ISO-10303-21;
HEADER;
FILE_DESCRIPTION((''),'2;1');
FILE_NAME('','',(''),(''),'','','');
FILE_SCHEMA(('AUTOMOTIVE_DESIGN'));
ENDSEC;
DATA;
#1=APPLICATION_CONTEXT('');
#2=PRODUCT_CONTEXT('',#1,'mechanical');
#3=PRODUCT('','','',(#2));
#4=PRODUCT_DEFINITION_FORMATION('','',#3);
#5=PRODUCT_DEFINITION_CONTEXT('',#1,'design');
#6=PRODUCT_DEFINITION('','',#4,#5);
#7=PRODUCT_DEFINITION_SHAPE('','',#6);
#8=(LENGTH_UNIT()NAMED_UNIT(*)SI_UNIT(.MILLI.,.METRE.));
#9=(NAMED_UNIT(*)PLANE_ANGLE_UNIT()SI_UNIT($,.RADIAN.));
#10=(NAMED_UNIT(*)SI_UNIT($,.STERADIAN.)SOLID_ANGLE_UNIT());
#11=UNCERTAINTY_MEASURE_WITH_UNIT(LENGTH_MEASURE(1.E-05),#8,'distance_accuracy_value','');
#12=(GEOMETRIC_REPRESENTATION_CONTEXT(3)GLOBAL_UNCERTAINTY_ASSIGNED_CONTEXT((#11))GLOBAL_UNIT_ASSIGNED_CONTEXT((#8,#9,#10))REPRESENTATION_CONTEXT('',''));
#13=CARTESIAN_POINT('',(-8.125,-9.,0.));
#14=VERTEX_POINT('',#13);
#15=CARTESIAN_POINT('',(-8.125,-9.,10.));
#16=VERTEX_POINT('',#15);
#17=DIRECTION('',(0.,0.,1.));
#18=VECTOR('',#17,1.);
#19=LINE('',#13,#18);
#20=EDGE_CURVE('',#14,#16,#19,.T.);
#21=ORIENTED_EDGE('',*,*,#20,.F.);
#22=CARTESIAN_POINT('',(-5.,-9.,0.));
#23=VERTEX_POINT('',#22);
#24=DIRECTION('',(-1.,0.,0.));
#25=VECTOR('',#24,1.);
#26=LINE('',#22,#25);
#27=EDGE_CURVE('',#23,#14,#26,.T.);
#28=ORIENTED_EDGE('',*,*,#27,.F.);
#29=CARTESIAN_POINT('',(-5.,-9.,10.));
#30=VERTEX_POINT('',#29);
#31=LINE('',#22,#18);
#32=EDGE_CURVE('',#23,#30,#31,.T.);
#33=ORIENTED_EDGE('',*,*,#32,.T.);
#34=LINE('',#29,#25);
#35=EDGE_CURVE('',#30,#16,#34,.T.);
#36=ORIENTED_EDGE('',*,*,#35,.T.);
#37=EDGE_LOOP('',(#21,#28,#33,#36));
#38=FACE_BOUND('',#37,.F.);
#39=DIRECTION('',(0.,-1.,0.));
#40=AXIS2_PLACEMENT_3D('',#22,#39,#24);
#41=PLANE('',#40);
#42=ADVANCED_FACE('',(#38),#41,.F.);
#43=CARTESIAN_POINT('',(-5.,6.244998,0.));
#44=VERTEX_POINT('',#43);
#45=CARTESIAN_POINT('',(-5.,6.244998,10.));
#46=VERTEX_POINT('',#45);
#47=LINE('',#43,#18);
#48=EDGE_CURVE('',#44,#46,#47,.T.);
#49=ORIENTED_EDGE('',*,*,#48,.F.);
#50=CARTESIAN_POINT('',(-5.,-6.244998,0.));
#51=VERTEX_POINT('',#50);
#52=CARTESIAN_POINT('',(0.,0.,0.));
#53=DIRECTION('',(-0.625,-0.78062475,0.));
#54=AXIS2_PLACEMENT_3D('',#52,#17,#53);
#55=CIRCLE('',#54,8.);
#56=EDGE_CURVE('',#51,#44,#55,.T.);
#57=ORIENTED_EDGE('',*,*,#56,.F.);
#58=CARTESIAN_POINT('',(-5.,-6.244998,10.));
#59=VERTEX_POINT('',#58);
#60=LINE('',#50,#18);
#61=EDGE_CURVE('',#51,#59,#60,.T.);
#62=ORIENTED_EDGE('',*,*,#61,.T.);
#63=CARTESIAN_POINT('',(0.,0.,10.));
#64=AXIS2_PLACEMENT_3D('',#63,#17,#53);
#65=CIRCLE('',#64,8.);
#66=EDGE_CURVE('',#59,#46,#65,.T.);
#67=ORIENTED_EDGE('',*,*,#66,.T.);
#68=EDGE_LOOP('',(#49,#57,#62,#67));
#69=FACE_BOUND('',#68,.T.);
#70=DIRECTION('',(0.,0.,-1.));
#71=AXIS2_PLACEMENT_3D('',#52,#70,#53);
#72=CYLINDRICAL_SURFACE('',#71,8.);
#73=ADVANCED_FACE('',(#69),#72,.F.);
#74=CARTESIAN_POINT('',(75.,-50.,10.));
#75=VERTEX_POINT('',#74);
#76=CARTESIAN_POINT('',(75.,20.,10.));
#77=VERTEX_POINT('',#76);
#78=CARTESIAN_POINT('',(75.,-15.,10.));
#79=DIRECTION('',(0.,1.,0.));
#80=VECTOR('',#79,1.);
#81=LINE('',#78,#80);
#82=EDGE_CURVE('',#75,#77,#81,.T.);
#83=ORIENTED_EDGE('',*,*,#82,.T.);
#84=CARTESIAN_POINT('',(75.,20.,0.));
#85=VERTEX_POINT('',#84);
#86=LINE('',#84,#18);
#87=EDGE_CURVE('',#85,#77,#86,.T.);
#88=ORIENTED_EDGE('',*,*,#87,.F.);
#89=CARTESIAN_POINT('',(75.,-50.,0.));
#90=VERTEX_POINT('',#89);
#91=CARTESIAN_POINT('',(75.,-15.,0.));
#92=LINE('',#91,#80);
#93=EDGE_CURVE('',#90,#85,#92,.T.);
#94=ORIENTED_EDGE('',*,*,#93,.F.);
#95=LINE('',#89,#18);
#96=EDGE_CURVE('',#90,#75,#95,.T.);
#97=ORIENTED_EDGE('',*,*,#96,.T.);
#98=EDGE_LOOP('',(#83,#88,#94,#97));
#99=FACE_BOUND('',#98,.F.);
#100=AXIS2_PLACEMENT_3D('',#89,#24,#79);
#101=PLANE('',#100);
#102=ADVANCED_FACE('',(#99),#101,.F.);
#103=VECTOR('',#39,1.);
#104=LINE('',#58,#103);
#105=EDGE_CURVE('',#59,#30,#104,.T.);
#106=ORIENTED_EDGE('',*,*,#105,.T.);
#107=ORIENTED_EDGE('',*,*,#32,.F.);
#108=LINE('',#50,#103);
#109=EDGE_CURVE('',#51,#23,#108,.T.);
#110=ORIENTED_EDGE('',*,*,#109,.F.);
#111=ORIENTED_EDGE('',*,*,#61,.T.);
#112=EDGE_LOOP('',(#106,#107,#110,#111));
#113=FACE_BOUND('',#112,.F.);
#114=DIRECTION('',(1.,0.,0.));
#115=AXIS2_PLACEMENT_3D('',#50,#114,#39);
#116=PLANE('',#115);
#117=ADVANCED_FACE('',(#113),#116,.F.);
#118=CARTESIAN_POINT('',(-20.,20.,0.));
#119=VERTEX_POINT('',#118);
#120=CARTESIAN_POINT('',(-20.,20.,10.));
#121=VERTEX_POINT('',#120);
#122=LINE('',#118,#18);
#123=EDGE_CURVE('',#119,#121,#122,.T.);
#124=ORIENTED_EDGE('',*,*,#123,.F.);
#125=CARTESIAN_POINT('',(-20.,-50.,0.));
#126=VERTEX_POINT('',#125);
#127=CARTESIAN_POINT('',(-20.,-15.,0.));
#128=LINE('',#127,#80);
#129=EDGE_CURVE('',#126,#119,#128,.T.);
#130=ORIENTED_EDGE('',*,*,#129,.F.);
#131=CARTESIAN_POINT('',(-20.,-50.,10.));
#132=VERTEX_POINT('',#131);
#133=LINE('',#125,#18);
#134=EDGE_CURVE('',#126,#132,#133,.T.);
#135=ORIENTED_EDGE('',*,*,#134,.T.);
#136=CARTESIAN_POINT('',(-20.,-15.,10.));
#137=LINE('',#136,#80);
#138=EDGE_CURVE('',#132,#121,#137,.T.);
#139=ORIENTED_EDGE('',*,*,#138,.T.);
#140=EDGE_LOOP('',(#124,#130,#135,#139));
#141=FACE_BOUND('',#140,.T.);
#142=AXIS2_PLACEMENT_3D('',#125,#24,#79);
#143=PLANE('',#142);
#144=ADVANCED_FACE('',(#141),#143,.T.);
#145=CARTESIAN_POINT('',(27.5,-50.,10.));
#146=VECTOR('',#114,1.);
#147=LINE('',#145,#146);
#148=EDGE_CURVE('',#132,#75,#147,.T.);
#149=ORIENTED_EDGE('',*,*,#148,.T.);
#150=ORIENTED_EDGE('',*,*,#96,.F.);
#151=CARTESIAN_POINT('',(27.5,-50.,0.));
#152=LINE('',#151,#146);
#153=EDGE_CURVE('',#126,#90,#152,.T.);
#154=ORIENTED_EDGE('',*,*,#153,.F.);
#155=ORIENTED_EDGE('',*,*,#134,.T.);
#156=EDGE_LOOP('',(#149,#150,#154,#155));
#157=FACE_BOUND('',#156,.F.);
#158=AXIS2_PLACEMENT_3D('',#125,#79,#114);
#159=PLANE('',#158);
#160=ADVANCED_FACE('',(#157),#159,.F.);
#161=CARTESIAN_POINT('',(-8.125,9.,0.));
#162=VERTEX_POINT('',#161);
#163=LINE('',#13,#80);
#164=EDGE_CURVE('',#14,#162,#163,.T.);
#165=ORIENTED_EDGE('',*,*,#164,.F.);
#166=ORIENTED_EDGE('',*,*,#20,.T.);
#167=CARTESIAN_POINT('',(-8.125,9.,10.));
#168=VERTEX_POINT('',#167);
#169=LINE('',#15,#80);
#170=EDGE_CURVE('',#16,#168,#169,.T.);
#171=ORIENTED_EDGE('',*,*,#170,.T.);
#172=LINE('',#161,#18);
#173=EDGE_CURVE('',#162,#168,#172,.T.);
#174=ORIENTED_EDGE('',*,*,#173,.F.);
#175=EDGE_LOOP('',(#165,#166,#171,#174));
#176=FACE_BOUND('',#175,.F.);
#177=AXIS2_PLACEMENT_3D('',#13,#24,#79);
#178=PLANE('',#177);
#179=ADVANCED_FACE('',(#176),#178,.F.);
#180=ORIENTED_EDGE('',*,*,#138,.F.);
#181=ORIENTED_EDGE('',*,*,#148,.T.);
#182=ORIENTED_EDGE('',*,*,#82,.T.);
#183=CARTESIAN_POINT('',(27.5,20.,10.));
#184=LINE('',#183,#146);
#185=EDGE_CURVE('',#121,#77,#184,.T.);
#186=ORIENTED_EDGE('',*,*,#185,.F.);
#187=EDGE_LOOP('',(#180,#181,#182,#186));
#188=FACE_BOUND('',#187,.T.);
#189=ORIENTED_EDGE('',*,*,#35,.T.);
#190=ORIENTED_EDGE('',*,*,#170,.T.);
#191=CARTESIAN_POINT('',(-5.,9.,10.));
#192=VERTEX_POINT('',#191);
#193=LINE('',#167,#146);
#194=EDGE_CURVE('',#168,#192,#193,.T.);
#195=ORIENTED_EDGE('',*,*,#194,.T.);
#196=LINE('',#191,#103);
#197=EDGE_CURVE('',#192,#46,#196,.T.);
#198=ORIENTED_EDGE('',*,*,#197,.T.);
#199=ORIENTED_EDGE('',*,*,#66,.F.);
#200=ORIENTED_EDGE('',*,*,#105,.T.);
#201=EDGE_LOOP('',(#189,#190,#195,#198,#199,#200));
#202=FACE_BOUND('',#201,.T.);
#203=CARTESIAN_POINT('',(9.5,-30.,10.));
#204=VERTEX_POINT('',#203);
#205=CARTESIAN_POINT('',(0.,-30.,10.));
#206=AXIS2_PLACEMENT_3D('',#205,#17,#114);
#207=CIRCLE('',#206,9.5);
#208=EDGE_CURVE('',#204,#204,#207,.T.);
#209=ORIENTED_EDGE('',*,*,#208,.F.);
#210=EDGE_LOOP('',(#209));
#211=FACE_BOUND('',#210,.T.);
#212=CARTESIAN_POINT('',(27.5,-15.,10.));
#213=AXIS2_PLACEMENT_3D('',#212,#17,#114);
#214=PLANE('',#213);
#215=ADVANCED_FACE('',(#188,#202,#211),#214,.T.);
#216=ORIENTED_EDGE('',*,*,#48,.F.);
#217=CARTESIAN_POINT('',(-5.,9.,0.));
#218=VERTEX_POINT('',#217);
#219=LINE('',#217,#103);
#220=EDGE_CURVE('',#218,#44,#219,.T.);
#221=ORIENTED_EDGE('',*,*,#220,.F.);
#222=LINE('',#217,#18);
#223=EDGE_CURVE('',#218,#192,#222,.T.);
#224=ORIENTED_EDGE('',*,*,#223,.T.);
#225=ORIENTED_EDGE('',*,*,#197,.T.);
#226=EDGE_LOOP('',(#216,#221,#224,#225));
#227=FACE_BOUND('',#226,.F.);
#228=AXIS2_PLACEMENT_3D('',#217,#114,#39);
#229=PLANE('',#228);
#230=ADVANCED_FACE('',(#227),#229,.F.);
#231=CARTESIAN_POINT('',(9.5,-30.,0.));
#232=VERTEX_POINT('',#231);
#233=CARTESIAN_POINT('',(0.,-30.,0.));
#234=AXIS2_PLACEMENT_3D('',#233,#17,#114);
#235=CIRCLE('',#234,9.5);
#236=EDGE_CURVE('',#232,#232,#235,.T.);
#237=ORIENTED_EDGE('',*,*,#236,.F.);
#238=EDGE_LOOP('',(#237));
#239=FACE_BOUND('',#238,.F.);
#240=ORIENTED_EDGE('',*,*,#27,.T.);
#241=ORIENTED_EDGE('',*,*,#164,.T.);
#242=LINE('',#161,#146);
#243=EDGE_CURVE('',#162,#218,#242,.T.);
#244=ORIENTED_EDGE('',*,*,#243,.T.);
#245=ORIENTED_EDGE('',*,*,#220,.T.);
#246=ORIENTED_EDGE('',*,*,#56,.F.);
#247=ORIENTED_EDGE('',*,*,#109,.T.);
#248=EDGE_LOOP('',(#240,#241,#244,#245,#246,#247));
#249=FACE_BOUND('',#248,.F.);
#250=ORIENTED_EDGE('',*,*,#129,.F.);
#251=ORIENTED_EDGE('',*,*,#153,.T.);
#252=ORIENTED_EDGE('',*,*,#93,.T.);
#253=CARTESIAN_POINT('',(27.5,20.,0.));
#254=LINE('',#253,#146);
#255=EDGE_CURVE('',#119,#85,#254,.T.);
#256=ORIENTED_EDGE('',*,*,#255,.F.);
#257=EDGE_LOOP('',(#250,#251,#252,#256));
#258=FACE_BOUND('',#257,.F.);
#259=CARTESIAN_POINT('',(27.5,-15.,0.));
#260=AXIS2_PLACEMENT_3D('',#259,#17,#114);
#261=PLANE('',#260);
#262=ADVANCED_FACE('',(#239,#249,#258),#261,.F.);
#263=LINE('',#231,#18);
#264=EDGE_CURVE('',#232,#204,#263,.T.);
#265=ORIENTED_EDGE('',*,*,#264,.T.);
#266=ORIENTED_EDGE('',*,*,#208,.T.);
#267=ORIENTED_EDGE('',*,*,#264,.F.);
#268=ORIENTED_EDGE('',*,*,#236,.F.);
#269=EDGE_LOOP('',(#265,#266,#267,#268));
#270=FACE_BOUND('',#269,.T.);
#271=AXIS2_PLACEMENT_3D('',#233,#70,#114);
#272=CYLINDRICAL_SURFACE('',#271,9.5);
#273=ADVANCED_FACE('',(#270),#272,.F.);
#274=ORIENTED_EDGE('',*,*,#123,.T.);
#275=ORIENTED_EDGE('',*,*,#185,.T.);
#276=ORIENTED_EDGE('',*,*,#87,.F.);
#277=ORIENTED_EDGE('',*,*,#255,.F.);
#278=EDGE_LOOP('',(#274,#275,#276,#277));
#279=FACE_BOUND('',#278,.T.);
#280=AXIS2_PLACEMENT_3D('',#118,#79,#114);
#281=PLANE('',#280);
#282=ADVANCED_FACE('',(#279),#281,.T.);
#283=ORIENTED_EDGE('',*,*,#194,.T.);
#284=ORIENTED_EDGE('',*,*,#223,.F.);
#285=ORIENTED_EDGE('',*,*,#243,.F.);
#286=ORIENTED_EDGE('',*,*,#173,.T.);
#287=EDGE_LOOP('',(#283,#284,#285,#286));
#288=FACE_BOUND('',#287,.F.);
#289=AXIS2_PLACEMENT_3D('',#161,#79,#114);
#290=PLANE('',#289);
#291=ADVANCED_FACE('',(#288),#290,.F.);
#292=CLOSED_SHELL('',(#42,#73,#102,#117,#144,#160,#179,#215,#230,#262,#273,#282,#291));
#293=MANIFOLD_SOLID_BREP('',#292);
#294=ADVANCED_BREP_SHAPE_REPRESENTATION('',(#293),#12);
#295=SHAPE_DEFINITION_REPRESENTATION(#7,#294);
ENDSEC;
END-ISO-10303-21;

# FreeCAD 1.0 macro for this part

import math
import FreeCAD as App
import Part
import Sketcher

doc = App.newDocument("Part")
body = doc.addObject("PartDesign::Body", "Body")

# Sketch on XY plane
sketch1 = doc.addObject("Sketcher::SketchObject", "Sketch")
body.addObject(sketch1)
sketch1.AttachmentSupport = (doc.XY_Plane, [""])
sketch1.MapMode = "FlatFace"
sketch1.addGeometry(Part.LineSegment(App.Vector(-20, 20, 0), App.Vector(-20, -50, 0)), False)
sketch1.addGeometry(Part.LineSegment(App.Vector(-20, -50, 0), App.Vector(75, -50, 0)), False)
sketch1.addGeometry(Part.LineSegment(App.Vector(75, -50, 0), App.Vector(75, 20, 0)), False)
sketch1.addGeometry(Part.LineSegment(App.Vector(75, 20, 0), App.Vector(-20, 20, 0)), False)
sketch1.addGeometry(Part.Circle(App.Vector(0, -30, 0), App.Vector(0, 0, 1), 9.5), False)
sketch1.addGeometry(Part.ArcOfCircle(Part.Circle(App.Vector(0, 0, 0), App.Vector(0, 0, 1), 8), math.radians(-129), math.radians(129)), False)
sketch1.addGeometry(Part.LineSegment(App.Vector(-5, -6.2, 0), App.Vector(-5, -9, 0)), False)
sketch1.addGeometry(Part.LineSegment(App.Vector(-5, -9, 0), App.Vector(-8.1, -9, 0)), False)
sketch1.addGeometry(Part.LineSegment(App.Vector(-8.1, -9, 0), App.Vector(-8.1, 9, 0)), False)
sketch1.addGeometry(Part.LineSegment(App.Vector(-8.1, 9, 0), App.Vector(-5, 9, 0)), False)
sketch1.addGeometry(Part.LineSegment(App.Vector(-5, 9, 0), App.Vector(-5, 6.2, 0)), False)
sketch1.addConstraint(Sketcher.Constraint("Coincident", 0, 2, 1, 1))
sketch1.addConstraint(Sketcher.Constraint("Coincident", 1, 2, 2, 1))
sketch1.addConstraint(Sketcher.Constraint("Coincident", 2, 2, 3, 1))
sketch1.addConstraint(Sketcher.Constraint("Coincident", 3, 2, 0, 1))
sketch1.addConstraint(Sketcher.Constraint("Coincident", 5, 1, 6, 1))
sketch1.addConstraint(Sketcher.Constraint("Coincident", 6, 2, 7, 1))
sketch1.addConstraint(Sketcher.Constraint("Coincident", 7, 2, 8, 1))
sketch1.addConstraint(Sketcher.Constraint("Coincident", 8, 2, 9, 1))
sketch1.addConstraint(Sketcher.Constraint("Coincident", 9, 2, 10, 1))
sketch1.addConstraint(Sketcher.Constraint("Coincident", 10, 2, 5, 2))
sketch1.addConstraint(Sketcher.Constraint("Vertical", 0))
sketch1.addConstraint(Sketcher.Constraint("Horizontal", 1))
sketch1.addConstraint(Sketcher.Constraint("Vertical", 2))
sketch1.addConstraint(Sketcher.Constraint("Horizontal", 3))
sketch1.addConstraint(Sketcher.Constraint("Vertical", 6))
sketch1.addConstraint(Sketcher.Constraint("Horizontal", 7))
sketch1.addConstraint(Sketcher.Constraint("Vertical", 8))
sketch1.addConstraint(Sketcher.Constraint("Horizontal", 9))
sketch1.addConstraint(Sketcher.Constraint("Vertical", 10))
sketch1.addConstraint(Sketcher.Constraint("Coincident", 5, 3, -1, 1))
sketch1.addConstraint(Sketcher.Constraint("Symmetric", 6, 2, 9, 2, -1))
sketch1.addConstraint(Sketcher.Constraint("PointOnObject", 4, 3, -2))
sketch1.addConstraint(Sketcher.Constraint("Diameter", 4, 19.0))
sketch1.addConstraint(Sketcher.Constraint("Radius", 5, 8.0))
sketch1.addConstraint(Sketcher.Constraint("DistanceX", 1, 1, 1, 2, 95.0))
sketch1.addConstraint(Sketcher.Constraint("DistanceY", 0, 2, 0, 1, 70.0))
sketch1.addConstraint(Sketcher.Constraint("DistanceY", 8, 1, 8, 2, 18.0))
sketch1.addConstraint(Sketcher.Constraint("DistanceY", 4, 3, -1, 1, 30.0))
sketch1.addConstraint(Sketcher.Constraint("DistanceX", 0, 2, -1, 1, 20.0))
sketch1.addConstraint(Sketcher.Constraint("DistanceY", 0, 2, -1, 1, 50.0))
sketch1.addConstraint(Sketcher.Constraint("DistanceX", 5, 1, -1, 1, 5.0))
sketch1.addConstraint(Sketcher.Constraint("DistanceX", 7, 2, 7, 1, 3.125))
pad1 = doc.addObject("PartDesign::Pad", "Pad")
body.addObject(pad1)
pad1.Profile = sketch1
pad1.Length = 10

doc.recompute()
